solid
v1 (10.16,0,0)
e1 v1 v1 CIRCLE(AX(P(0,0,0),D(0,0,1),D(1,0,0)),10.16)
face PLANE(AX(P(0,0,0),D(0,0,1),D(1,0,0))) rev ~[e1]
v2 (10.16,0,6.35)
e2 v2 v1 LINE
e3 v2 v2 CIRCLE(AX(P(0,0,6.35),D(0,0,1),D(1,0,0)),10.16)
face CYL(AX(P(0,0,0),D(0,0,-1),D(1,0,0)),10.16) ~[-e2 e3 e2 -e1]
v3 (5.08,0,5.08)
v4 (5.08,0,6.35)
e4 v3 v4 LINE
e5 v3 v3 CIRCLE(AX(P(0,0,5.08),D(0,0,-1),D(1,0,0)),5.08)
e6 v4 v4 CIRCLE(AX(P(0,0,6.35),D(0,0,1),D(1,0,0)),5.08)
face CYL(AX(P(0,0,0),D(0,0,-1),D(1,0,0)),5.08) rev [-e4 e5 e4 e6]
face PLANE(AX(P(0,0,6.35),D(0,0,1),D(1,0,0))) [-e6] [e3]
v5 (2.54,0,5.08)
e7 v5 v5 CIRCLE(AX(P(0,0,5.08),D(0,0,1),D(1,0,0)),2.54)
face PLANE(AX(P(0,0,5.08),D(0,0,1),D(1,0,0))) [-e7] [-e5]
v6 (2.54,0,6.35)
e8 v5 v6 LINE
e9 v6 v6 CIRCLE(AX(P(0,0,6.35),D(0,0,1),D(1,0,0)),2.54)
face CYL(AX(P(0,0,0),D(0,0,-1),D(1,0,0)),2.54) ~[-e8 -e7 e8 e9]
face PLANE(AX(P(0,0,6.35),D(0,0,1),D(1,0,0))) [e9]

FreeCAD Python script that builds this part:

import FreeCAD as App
import Part
import Sketcher
Q = App.Units.Quantity

doc = App.newDocument("Part")
body = doc.addObject("PartDesign::Body", "Body")

# Sketch on XY plane
sketch1 = body.newObject("Sketcher::SketchObject", "Sketch")
sketch1.AttachmentSupport = (doc.getObject("XY_Plane"), [""])
sketch1.MapMode = "FlatFace"
sketch1.addGeometry([
    Part.Circle(App.Vector(0, 0, 0), App.Vector(0, 0, 1), 10),
    Part.Circle(App.Vector(0, 0, 0), App.Vector(0, 0, 1), 5),
], False)
sketch1.addConstraint([
    Sketcher.Constraint("Coincident", 0, 3, -1, 1),
    Sketcher.Constraint("Coincident", 1, 3, -1, 1),
    Sketcher.Constraint("Diameter", 0, Q("0.8 in")),
    Sketcher.Constraint("Diameter", 1, Q("0.4 in")),
])
pad1 = body.newObject("PartDesign::Pad", "Pad")
pad1.Profile = sketch1
pad1.Length = Q("0.25 in")
body2 = doc.addObject("PartDesign::Body", "Body001")

# Sketch on XY plane
sketch2 = body2.newObject("Sketcher::SketchObject", "Sketch001")
sketch2.AttachmentSupport = (doc.getObject("XY_Plane001"), [""])
sketch2.MapMode = "FlatFace"
sketch2.addGeometry(Part.Circle(App.Vector(0, 0, 0), App.Vector(0, 0, 1), 2.5), False)
sketch2.addConstraint([
    Sketcher.Constraint("Coincident", 0, 3, -1, 1),
    Sketcher.Constraint("Diameter", 0, Q("0.2 in")),
])
pad2 = body2.newObject("PartDesign::Pad", "Pad001")
pad2.Profile = sketch2
pad2.Length = Q("0.25 in")
body.AllowCompound = True
doc.recompute()

boolean = body.newObject("PartDesign::Boolean", "Boolean")
boolean.Type = "Fuse"
boolean.addObjects([body2])

# Sketch on XY plane
sketch3 = body.newObject("Sketcher::SketchObject", "Sketch002")
sketch3.AttachmentSupport = (doc.getObject("XY_Plane"), [""])
sketch3.MapMode = "FlatFace"
sketch3.addGeometry([
    Part.Circle(App.Vector(0, 0, 0), App.Vector(0, 0, 1), 10.2),
    Part.Circle(App.Vector(0, 0, 0), App.Vector(0, 0, 1), 2.5),
], False)
sketch3.addConstraint([
    Sketcher.Constraint("Coincident", 0, 3, -1, 1),
    Sketcher.Constraint("Coincident", 1, 3, -1, 1),
    Sketcher.Constraint("Diameter", 0, Q("0.8 in")),
    Sketcher.Constraint("Diameter", 1, Q("0.2 in")),
])
pad3 = body.newObject("PartDesign::Pad", "Pad002")
pad3.Profile = sketch3
pad3.Length = Q("0.2 in")

doc.recompute()
